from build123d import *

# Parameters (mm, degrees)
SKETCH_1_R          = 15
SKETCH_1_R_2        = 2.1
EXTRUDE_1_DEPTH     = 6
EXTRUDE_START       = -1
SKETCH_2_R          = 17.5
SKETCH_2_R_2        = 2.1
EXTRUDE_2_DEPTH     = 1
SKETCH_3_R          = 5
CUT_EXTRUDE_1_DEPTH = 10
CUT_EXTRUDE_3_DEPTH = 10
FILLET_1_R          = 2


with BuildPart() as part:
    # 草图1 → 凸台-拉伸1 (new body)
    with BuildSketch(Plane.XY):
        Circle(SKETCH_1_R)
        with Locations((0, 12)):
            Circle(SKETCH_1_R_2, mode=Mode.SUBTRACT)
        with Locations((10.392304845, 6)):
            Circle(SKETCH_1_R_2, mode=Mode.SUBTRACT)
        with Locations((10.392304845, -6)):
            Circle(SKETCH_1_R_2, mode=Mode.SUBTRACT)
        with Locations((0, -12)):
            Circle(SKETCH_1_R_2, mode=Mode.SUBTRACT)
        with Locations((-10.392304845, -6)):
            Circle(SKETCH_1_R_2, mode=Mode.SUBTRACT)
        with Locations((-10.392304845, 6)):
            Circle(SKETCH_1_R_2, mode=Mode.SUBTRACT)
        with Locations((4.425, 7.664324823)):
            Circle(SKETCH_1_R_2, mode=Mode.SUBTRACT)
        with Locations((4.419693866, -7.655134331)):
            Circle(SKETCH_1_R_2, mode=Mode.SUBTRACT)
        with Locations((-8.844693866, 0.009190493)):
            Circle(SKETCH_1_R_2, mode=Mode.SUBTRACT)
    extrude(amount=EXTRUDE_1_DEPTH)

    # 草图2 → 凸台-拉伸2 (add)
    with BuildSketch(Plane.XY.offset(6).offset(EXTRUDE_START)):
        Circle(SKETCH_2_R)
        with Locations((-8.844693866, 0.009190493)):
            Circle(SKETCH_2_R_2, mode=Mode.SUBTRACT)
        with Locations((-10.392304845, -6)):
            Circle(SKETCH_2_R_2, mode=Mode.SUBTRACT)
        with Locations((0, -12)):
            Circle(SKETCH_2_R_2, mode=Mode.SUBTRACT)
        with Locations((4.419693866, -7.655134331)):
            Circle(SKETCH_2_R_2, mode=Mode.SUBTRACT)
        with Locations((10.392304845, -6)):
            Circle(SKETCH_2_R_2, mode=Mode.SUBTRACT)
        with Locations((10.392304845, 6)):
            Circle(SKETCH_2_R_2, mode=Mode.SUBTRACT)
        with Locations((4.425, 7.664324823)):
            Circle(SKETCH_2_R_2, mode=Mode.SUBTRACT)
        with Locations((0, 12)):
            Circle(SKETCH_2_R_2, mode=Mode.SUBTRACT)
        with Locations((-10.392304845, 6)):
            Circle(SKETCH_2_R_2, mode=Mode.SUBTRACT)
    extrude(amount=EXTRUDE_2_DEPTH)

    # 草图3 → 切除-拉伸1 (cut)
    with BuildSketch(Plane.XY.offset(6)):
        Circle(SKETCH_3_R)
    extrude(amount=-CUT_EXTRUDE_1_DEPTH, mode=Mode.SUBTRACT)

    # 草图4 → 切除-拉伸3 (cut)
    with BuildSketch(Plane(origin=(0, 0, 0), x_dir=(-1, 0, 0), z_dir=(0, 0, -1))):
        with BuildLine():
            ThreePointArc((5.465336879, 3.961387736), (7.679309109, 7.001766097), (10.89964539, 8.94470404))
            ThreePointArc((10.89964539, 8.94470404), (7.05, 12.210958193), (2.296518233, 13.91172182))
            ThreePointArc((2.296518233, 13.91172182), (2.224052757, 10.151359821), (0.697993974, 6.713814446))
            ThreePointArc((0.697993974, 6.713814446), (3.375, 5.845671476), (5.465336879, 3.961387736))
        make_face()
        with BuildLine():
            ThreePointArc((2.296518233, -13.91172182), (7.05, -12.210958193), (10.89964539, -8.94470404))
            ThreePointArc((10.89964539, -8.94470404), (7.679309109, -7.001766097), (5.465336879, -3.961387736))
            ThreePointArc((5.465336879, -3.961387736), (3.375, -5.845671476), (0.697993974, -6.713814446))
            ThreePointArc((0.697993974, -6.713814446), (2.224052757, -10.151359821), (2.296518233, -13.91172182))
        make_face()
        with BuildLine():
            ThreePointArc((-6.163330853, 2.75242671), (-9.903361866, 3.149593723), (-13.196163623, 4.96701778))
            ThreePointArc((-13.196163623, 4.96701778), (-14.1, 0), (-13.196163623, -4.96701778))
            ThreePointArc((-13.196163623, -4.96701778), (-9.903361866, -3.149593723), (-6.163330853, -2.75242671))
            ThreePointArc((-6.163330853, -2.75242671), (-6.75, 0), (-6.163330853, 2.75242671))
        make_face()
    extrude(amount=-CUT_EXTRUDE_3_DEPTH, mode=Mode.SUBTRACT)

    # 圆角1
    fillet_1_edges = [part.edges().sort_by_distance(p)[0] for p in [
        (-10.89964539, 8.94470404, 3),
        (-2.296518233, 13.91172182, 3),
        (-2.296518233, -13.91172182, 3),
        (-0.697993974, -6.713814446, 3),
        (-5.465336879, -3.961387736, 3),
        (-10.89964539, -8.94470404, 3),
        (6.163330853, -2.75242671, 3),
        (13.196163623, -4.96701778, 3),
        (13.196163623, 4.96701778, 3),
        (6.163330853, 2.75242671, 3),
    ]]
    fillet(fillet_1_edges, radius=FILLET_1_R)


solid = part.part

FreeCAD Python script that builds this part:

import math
import FreeCAD as App
import Part
import Sketcher
from FreeCAD import Vector
Q = App.Units.Quantity


def edges_at(feature, points):
    """Names of the edges that pass closest to the given points."""
    edges = feature.Shape.Edges
    near = lambda p: min(range(len(edges)), key=lambda i: edges[i].distToShape(Part.Vertex(*p))[0])
    return sorted({f"Edge{near(p) + 1}" for p in points})

doc = App.newDocument("Part")
params = doc.addObject("Spreadsheet::Sheet", "Params")
for row, (alias, value) in enumerate([
    ("sketch1_diameter", "30 mm"),
    ("sketch1_diameter2", "4.2 mm"),
    ("pad1_length", "6 mm"),
    ("sketch2_diameter", "35 mm"),
    ("sketch2_diameter2", "4.2 mm"),
    ("pad2_length", "1 mm"),
    ("sketch3_diameter", "10 mm"),
    ("pocket1_length", "10 mm"),
    ("sketch4_radius", "9.5 mm"),
    ("sketch4_radius2", "14.1 mm"),
    ("sketch4_radius3", "6.75 mm"),
    ("pocket2_length", "10 mm"),
    ("fillet_radius", "2 mm"),
], start=1):
    params.set(f"A{row}", alias)
    params.set(f"B{row}", "=" + value)
    params.setAlias(f"B{row}", alias)

body = doc.addObject("PartDesign::Body", "Body")

# Sketch on XY plane
sketch1 = doc.addObject("Sketcher::SketchObject", "Sketch")
body.addObject(sketch1)
sketch1.AttachmentSupport = (doc.XY_Plane, [""])
sketch1.MapMode = "FlatFace"
sketch1.addGeometry([
    Part.Circle(Vector(0, 0, 0), Vector(0, 0, 1), 15),  # 0
    Part.Circle(Vector(-10.4, -6, 0), Vector(0, 0, 1), 2.1),  # 1
    Part.Circle(Vector(0, -12, 0), Vector(0, 0, 1), 2.1),  # 2
    Part.Circle(Vector(4.4, -7.7, 0), Vector(0, 0, 1), 2.1),  # 3
    Part.Circle(Vector(10.4, -6, 0), Vector(0, 0, 1), 2.1),  # 4
    Part.Circle(Vector(-8.8, 0, 0), Vector(0, 0, 1), 2.1),  # 5
    Part.Circle(Vector(-10.4, 6, 0), Vector(0, 0, 1), 2.1),  # 6
    Part.Circle(Vector(10.4, 6, 0), Vector(0, 0, 1), 2.1),  # 7
    Part.Circle(Vector(4.4, 7.7, 0), Vector(0, 0, 1), 2.1),  # 8
    Part.Circle(Vector(0, 12, 0), Vector(0, 0, 1), 2.1),  # 9
], False)
sketch1.addConstraint([
    Sketcher.Constraint("Coincident", 0, 3, -1, 1),
    Sketcher.Constraint("Equal", 1, 2),
    Sketcher.Constraint("Equal", 2, 3),
    Sketcher.Constraint("Equal", 3, 4),
    Sketcher.Constraint("Equal", 4, 5),
    Sketcher.Constraint("Equal", 5, 6),
    Sketcher.Constraint("Equal", 6, 7),
    Sketcher.Constraint("Equal", 7, 8),
    Sketcher.Constraint("Equal", 8, 9),
    Sketcher.Constraint("Symmetric", 4, 3, 6, 3, -1, 1),
    Sketcher.Constraint("Symmetric", 1, 3, 7, 3, -1, 1),
    Sketcher.Constraint("Symmetric", 2, 3, 9, 3, -1, 1),
    Sketcher.Constraint("Symmetric", 1, 3, 4, 3, -2),
    Sketcher.Constraint("PointOnObject", 2, 3, -2),
    Sketcher.Constraint("Diameter", 0, Q("30 mm")),
    Sketcher.Constraint("Diameter", 1, Q("4.2 mm")),
    Sketcher.Constraint("DistanceY", 1, 3, -1, 1, Q("6 mm")),
    Sketcher.Constraint("DistanceY", 2, 3, -1, 1, Q("12 mm")),
    Sketcher.Constraint("DistanceX", -1, 1, 8, 3, Q("4.425 mm")),
    Sketcher.Constraint("DistanceX", 1, 3, 3, 3, Q("14.811999 mm")),
    Sketcher.Constraint("DistanceX", 5, 3, 4, 3, Q("19.236999 mm")),
    Sketcher.Constraint("DistanceY", -1, 1, 5, 3, Q("0.00919 mm")),
    Sketcher.Constraint("DistanceX", 3, 3, 4, 3, Q("5.972611 mm")),
    Sketcher.Constraint("DistanceY", 3, 3, -1, 1, Q("7.655134 mm")),
    Sketcher.Constraint("DistanceY", -1, 1, 8, 3, Q("7.664325 mm")),
])
sketch1.setExpression("Constraints[14]", "Params.sketch1_diameter")
sketch1.setExpression("Constraints[15]", "Params.sketch1_diameter2")
pad1 = doc.addObject("PartDesign::Pad", "Pad")
body.addObject(pad1)
pad1.Profile = sketch1
pad1.setExpression("Length", "Params.pad1_length")

# Sketch on XY plane
sketch2 = doc.addObject("Sketcher::SketchObject", "Sketch001")
body.addObject(sketch2)
sketch2.AttachmentSupport = (doc.XY_Plane, [""])
sketch2.MapMode = "FlatFace"
sketch2.AttachmentOffset = App.Placement(Vector(0, 0, 5), App.Rotation())
sketch2.addGeometry([
    Part.Circle(Vector(0, 0, 0), Vector(0, 0, 1), 17.5),  # 0
    Part.Circle(Vector(-10.4, -6, 0), Vector(0, 0, 1), 2.1),  # 1
    Part.Circle(Vector(0, -12, 0), Vector(0, 0, 1), 2.1),  # 2
    Part.Circle(Vector(4.4, -7.7, 0), Vector(0, 0, 1), 2.1),  # 3
    Part.Circle(Vector(10.4, -6, 0), Vector(0, 0, 1), 2.1),  # 4
    Part.Circle(Vector(-8.8, 0, 0), Vector(0, 0, 1), 2.1),  # 5
    Part.Circle(Vector(-10.4, 6, 0), Vector(0, 0, 1), 2.1),  # 6
    Part.Circle(Vector(10.4, 6, 0), Vector(0, 0, 1), 2.1),  # 7
    Part.Circle(Vector(4.4, 7.7, 0), Vector(0, 0, 1), 2.1),  # 8
    Part.Circle(Vector(0, 12, 0), Vector(0, 0, 1), 2.1),  # 9
], False)
sketch2.addConstraint([
    Sketcher.Constraint("Coincident", 0, 3, -1, 1),
    Sketcher.Constraint("Equal", 1, 2),
    Sketcher.Constraint("Equal", 2, 3),
    Sketcher.Constraint("Equal", 3, 4),
    Sketcher.Constraint("Equal", 4, 5),
    Sketcher.Constraint("Equal", 5, 6),
    Sketcher.Constraint("Equal", 6, 7),
    Sketcher.Constraint("Equal", 7, 8),
    Sketcher.Constraint("Equal", 8, 9),
    Sketcher.Constraint("Symmetric", 4, 3, 6, 3, -1, 1),
    Sketcher.Constraint("Symmetric", 1, 3, 7, 3, -1, 1),
    Sketcher.Constraint("Symmetric", 2, 3, 9, 3, -1, 1),
    Sketcher.Constraint("Symmetric", 1, 3, 4, 3, -2),
    Sketcher.Constraint("PointOnObject", 2, 3, -2),
    Sketcher.Constraint("Diameter", 0, Q("35 mm")),
    Sketcher.Constraint("Diameter", 1, Q("4.2 mm")),
    Sketcher.Constraint("DistanceY", 1, 3, -1, 1, Q("6 mm")),
    Sketcher.Constraint("DistanceY", 2, 3, -1, 1, Q("12 mm")),
    Sketcher.Constraint("DistanceX", -1, 1, 8, 3, Q("4.425 mm")),
    Sketcher.Constraint("DistanceX", 1, 3, 3, 3, Q("14.811999 mm")),
    Sketcher.Constraint("DistanceX", 5, 3, 4, 3, Q("19.236999 mm")),
    Sketcher.Constraint("DistanceY", -1, 1, 5, 3, Q("0.00919 mm")),
    Sketcher.Constraint("DistanceX", 3, 3, 4, 3, Q("5.972611 mm")),
    Sketcher.Constraint("DistanceY", 3, 3, -1, 1, Q("7.655134 mm")),
    Sketcher.Constraint("DistanceY", -1, 1, 8, 3, Q("7.664325 mm")),
])
sketch2.setExpression("Constraints[14]", "Params.sketch2_diameter")
sketch2.setExpression("Constraints[15]", "Params.sketch2_diameter2")
pad2 = doc.addObject("PartDesign::Pad", "Pad001")
body.addObject(pad2)
pad2.Profile = sketch2
pad2.setExpression("Length", "Params.pad2_length")

# Sketch on XY plane
sketch3 = doc.addObject("Sketcher::SketchObject", "Sketch002")
body.addObject(sketch3)
sketch3.AttachmentSupport = (doc.XY_Plane, [""])
sketch3.MapMode = "FlatFace"
sketch3.AttachmentOffset = App.Placement(Vector(0, 0, 6), App.Rotation())
sketch3.addGeometry(Part.Circle(Vector(0, 0, 0), Vector(0, 0, 1), 5), False)
sketch3.addConstraint([
    Sketcher.Constraint("Coincident", 0, 3, -1, 1),
    Sketcher.Constraint("Diameter", 0, Q("10 mm")),
])
sketch3.setExpression("Constraints[1]", "Params.sketch3_diameter")
pocket1 = doc.addObject("PartDesign::Pocket", "Pocket")
body.addObject(pocket1)
pocket1.Profile = sketch3
pocket1.setExpression("Length", "Params.pocket1_length")

# Sketch on XY plane
sketch4 = doc.addObject("Sketcher::SketchObject", "Sketch003")
body.addObject(sketch4)
sketch4.AttachmentSupport = (doc.XY_Plane, [""])
sketch4.MapMode = "FlatFace"
sketch4.addGeometry([
    Part.ArcOfCircle(Part.Circle(Vector(-14, 0, 0), Vector(0, 0, 1), 10), math.radians(25), math.radians(70)),  # 0
    Part.ArcOfCircle(Part.Circle(Vector(0, 0, 0), Vector(0, 0, 1), 14), math.radians(99), math.radians(141)),  # 1
    Part.ArcOfCircle(Part.Circle(Vector(7, 12, 0), Vector(0, 0, 1), 10), math.radians(170), math.radians(215)),  # 2
    Part.ArcOfCircle(Part.Circle(Vector(0, 0, 0), Vector(0, 0, 1), 7), math.radians(96), math.radians(144)),  # 3
    Part.ArcOfCircle(Part.Circle(Vector(0, 0, 0), Vector(0, 0, 1), 14), math.radians(-141), math.radians(-99)),  # 4
    Part.ArcOfCircle(Part.Circle(Vector(-14, 0, 0), Vector(0, 0, 1), 10), math.radians(-70), math.radians(-25)),  # 5
    Part.ArcOfCircle(Part.Circle(Vector(0, 0, 0), Vector(0, 0, 1), 7), math.radians(-144), math.radians(-96)),  # 6
    Part.ArcOfCircle(Part.Circle(Vector(7, -12, 0), Vector(0, 0, 1), 10), math.radians(145), math.radians(190)),  # 7
    Part.ArcOfCircle(Part.Circle(Vector(7, 12, 0), Vector(0, 0, 1), 9), math.radians(-95), math.radians(-50)),  # 8
    Part.ArcOfCircle(Part.Circle(Vector(0, 0, 0), Vector(0, 0, 1), 14), math.radians(-21), math.radians(21)),  # 9
    Part.ArcOfCircle(Part.Circle(Vector(7, -12, 0), Vector(0, 0, 1), 9), math.radians(50), math.radians(95)),  # 10
    Part.ArcOfCircle(Part.Circle(Vector(0, 0, 0), Vector(0, 0, 1), 7), math.radians(-24), math.radians(24)),  # 11
], False)
sketch4.addConstraint([
    Sketcher.Constraint("Coincident", 0, 2, 1, 2),
    Sketcher.Constraint("Coincident", 1, 1, 2, 1),
    Sketcher.Constraint("Coincident", 2, 2, 3, 1),
    Sketcher.Constraint("Coincident", 3, 2, 0, 1),
    Sketcher.Constraint("Coincident", 4, 1, 5, 1),
    Sketcher.Constraint("Coincident", 5, 2, 6, 1),
    Sketcher.Constraint("Coincident", 6, 2, 7, 1),
    Sketcher.Constraint("Coincident", 7, 2, 4, 2),
    Sketcher.Constraint("Coincident", 8, 2, 9, 2),
    Sketcher.Constraint("Coincident", 9, 1, 10, 1),
    Sketcher.Constraint("Coincident", 10, 2, 11, 1),
    Sketcher.Constraint("Coincident", 11, 2, 8, 1),
    Sketcher.Constraint("Coincident", 1, 3, -1, 1),
    Sketcher.Constraint("Coincident", 3, 3, -1, 1),
    Sketcher.Constraint("Coincident", 4, 3, -1, 1),
    Sketcher.Constraint("Coincident", 6, 3, -1, 1),
    Sketcher.Constraint("Coincident", 9, 3, -1, 1),
    Sketcher.Constraint("Coincident", 11, 3, -1, 1),
    Sketcher.Constraint("Coincident", 5, 3, 0, 3),
    Sketcher.Constraint("Coincident", 8, 3, 2, 3),
    Sketcher.Constraint("Coincident", 10, 3, 7, 3),
    Sketcher.Constraint("Equal", 0, 2),
    Sketcher.Constraint("Equal", 1, 4),
    Sketcher.Constraint("Equal", 2, 5),
    Sketcher.Constraint("Equal", 3, 6),
    Sketcher.Constraint("Equal", 5, 7),
    Sketcher.Constraint("Equal", 7, 8),
    Sketcher.Constraint("Equal", 4, 9),
    Sketcher.Constraint("Equal", 8, 10),
    Sketcher.Constraint("Equal", 6, 11),
    Sketcher.Constraint("Symmetric", 2, 3, 7, 3, -1),
    Sketcher.Constraint("PointOnObject", 0, 3, -1),
    Sketcher.Constraint("Radius", 0, Q("9.5 mm")),
    Sketcher.Constraint("Radius", 1, Q("14.1 mm")),
    Sketcher.Constraint("Radius", 3, Q("6.75 mm")),
    Sketcher.Constraint("DistanceX", 0, 3, -1, 1, Q("14.1 mm")),
    Sketcher.Constraint("DistanceX", -1, 1, 2, 3, Q("7.05 mm")),
    Sketcher.Constraint("DistanceY", -1, 1, 2, 3, Q("12.210958 mm")),
])
sketch4.setExpression("Constraints[32]", "Params.sketch4_radius")
sketch4.setExpression("Constraints[33]", "Params.sketch4_radius2")
sketch4.setExpression("Constraints[34]", "Params.sketch4_radius3")
pocket2 = doc.addObject("PartDesign::Pocket", "Pocket001")
body.addObject(pocket2)
pocket2.Profile = sketch4
pocket2.setExpression("Length", "Params.pocket2_length")
pocket2.Reversed = True
doc.recompute()

fillet = doc.addObject("PartDesign::Fillet", "Fillet")
body.addObject(fillet)
fillet.Base = (pocket2, edges_at(pocket2, [
    (-10.9, 8.945, 3),
    (-2.297, 13.912, 3),
    (-2.297, -13.912, 3),
    (-0.698, -6.714, 3),
    (-5.465, -3.961, 3),
    (-10.9, -8.945, 3),
    (6.163, -2.752, 3),
    (13.196, -4.967, 3),
    (13.196, 4.967, 3),
    (6.163, 2.752, 3),
]))
fillet.setExpression("Radius", "Params.fillet_radius")

doc.recompute()
